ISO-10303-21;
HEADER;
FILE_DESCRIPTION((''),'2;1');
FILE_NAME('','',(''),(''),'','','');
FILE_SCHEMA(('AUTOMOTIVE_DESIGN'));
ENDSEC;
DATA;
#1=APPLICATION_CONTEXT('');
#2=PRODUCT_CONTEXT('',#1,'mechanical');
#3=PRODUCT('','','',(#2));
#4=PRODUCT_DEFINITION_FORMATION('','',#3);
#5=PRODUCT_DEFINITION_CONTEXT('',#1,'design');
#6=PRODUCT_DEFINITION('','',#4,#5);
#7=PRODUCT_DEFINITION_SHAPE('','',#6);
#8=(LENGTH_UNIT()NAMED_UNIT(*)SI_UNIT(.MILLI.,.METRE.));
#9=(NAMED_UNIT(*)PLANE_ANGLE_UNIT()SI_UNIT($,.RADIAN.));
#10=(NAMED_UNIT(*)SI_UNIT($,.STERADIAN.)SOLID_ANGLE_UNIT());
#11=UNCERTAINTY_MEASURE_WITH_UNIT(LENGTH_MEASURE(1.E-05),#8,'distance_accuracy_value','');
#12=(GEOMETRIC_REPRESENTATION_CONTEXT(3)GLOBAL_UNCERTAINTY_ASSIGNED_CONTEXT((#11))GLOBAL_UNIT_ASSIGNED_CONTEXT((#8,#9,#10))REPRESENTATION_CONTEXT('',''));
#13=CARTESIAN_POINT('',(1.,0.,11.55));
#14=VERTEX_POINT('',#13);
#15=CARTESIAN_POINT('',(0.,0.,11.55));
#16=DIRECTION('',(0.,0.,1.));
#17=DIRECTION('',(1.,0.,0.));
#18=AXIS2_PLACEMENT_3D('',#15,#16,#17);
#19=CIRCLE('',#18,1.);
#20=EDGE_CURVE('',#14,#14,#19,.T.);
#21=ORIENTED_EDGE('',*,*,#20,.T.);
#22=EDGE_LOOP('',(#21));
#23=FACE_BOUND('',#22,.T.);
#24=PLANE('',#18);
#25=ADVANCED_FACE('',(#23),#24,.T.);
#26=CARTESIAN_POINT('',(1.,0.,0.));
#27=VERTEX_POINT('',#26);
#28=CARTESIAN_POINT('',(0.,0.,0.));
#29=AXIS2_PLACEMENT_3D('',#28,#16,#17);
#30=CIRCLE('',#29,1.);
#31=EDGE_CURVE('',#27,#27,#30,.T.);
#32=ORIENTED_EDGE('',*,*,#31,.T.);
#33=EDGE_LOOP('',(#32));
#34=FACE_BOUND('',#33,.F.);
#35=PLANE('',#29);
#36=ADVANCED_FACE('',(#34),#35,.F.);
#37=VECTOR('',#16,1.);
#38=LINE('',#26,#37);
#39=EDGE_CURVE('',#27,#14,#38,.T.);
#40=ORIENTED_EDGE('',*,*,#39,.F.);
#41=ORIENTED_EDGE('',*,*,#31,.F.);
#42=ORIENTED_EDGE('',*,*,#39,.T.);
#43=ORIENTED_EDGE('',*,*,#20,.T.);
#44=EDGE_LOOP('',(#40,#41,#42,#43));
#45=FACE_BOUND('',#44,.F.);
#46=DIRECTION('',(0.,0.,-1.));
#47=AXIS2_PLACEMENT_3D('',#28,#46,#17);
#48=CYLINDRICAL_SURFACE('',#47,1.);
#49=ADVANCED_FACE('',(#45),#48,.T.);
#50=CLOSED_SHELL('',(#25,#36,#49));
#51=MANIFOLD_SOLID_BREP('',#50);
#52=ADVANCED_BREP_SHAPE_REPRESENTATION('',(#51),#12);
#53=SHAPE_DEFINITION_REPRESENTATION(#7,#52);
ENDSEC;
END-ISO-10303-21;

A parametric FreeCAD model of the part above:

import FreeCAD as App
import Part
import Sketcher
from FreeCAD import Vector

doc = App.newDocument("Part")
body = doc.addObject("PartDesign::Body", "Body")

sketch1 = doc.addObject("Sketcher::SketchObject", "Sketch")
body.addObject(sketch1)
sketch1.AttachmentSupport = (doc.XY_Plane, [""])
sketch1.MapMode = "FlatFace"
sketch1.addGeometry(Part.Circle(Vector(0, 0, 0), Vector(0, 0, 1), 1), False)
sketch1.addConstraint([
    Sketcher.Constraint("Coincident", 0, 3, -1, 1),
    Sketcher.Constraint("Diameter", 0, 2.0),
])
pad1 = doc.addObject("PartDesign::Pad", "Pad")
body.addObject(pad1)
pad1.Profile = sketch1
pad1.Length = 11.55

doc.recompute()
